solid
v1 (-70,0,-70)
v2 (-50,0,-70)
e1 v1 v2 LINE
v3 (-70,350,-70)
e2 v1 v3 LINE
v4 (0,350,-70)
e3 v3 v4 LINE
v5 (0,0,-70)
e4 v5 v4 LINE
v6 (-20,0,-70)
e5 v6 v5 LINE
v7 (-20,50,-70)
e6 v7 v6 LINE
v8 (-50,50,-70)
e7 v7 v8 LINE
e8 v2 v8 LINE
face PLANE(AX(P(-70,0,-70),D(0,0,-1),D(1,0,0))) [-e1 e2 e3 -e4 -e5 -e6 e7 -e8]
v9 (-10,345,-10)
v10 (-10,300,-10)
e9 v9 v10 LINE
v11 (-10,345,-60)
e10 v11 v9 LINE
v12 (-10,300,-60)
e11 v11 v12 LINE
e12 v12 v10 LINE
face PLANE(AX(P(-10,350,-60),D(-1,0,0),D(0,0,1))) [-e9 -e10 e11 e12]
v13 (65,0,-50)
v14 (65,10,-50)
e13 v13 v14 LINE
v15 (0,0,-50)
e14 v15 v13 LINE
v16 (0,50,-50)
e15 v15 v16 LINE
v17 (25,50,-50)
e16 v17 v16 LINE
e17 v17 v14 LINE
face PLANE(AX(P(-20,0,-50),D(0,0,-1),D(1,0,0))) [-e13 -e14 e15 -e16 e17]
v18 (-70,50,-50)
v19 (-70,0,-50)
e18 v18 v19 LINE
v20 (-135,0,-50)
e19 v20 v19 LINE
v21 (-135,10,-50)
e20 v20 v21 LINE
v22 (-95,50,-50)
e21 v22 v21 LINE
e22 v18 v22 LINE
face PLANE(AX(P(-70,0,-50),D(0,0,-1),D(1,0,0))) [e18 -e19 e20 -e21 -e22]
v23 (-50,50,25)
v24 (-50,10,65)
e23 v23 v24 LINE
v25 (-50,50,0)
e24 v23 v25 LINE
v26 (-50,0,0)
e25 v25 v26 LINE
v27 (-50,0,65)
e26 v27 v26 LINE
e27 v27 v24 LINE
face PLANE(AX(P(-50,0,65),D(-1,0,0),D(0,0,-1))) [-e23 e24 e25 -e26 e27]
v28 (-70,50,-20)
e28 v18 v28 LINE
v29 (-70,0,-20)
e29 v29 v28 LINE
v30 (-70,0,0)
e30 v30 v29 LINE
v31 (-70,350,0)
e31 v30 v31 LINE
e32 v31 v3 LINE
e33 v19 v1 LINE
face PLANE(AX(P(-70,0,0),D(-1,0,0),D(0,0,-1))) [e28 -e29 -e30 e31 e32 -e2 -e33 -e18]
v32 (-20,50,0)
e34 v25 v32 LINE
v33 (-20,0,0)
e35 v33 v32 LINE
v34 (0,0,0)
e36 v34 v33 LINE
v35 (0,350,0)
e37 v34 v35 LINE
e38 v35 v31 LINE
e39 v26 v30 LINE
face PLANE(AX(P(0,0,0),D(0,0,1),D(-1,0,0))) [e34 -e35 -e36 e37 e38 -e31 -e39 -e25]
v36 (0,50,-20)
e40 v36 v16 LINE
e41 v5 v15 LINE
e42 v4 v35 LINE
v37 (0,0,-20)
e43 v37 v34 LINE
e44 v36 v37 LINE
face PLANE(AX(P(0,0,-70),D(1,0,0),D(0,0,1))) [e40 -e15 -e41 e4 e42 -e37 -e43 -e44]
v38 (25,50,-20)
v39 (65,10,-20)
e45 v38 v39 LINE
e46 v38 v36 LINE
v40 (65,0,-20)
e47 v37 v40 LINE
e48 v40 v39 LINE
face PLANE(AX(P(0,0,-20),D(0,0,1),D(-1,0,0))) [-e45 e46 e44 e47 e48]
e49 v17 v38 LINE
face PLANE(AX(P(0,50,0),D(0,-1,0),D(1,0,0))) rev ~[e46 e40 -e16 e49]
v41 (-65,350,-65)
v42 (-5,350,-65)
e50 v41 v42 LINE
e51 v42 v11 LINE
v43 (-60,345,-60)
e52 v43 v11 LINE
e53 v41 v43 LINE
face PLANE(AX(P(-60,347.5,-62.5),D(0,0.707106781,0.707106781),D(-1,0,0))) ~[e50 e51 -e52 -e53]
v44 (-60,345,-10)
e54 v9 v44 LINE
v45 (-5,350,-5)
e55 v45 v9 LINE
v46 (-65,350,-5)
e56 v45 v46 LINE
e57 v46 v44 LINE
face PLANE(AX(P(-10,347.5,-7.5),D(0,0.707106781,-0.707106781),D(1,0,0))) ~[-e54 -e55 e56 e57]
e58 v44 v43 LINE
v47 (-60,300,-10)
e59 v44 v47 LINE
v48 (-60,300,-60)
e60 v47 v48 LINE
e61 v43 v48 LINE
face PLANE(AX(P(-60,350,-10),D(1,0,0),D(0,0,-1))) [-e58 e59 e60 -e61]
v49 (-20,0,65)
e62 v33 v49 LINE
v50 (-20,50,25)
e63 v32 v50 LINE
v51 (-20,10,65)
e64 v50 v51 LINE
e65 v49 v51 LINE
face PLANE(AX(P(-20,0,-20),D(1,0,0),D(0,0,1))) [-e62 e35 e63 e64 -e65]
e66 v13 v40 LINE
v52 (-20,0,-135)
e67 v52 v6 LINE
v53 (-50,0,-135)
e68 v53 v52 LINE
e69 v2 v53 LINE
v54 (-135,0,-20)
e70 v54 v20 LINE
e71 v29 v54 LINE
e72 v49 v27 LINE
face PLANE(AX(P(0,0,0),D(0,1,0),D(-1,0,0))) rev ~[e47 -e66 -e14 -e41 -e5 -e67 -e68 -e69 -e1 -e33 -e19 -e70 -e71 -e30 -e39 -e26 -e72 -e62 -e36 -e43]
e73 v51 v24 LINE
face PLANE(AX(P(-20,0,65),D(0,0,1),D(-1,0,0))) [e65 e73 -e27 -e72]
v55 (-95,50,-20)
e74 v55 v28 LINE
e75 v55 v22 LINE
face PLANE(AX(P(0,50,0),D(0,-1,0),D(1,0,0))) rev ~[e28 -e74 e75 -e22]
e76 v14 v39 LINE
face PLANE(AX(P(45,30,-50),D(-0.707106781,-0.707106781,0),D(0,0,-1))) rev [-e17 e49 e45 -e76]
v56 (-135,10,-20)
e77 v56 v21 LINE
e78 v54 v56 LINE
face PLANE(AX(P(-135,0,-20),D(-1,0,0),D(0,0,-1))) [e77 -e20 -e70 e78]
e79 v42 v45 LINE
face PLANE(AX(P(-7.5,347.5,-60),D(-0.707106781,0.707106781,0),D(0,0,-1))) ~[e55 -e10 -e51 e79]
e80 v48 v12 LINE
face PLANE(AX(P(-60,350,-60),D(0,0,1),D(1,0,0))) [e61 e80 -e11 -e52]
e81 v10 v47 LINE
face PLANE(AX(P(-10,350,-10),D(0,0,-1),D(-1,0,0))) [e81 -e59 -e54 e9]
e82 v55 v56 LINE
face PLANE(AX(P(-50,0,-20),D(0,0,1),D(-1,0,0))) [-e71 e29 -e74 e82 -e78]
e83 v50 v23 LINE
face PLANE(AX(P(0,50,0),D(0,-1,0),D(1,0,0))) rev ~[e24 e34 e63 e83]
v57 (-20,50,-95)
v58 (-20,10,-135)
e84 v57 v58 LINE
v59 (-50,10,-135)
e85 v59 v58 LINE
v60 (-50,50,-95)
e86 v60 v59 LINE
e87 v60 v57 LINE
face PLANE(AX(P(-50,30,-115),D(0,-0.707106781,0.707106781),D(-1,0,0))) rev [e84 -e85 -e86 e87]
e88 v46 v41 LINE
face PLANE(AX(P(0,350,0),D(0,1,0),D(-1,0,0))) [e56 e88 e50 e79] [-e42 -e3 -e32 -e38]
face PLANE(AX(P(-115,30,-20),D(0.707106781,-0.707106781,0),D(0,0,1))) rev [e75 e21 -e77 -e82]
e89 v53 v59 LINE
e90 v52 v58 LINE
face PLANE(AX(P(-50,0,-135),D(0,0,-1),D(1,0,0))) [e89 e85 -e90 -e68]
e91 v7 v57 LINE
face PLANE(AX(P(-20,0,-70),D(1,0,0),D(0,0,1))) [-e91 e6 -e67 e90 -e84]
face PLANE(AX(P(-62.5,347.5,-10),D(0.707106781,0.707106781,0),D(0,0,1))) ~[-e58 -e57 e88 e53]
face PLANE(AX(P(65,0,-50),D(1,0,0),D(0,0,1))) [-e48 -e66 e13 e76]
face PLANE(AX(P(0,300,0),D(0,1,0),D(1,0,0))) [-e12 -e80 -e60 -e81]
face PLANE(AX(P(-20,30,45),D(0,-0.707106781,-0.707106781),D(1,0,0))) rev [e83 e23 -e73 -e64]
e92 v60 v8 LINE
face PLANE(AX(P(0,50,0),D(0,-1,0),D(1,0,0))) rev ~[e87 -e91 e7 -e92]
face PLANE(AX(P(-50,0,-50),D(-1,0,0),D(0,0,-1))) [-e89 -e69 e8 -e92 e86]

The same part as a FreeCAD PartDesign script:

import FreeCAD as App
import Part
import Sketcher
from FreeCAD import Vector
Q = App.Units.Quantity


def edges_at(feature, points):
    """Names of the edges that pass closest to the given points."""
    edges = feature.Shape.Edges
    near = lambda p: min(range(len(edges)), key=lambda i: edges[i].distToShape(Part.Vertex(*p))[0])
    return sorted({f"Edge{near(p) + 1}" for p in points})

doc = App.newDocument("Part")
body = doc.addObject("PartDesign::Body", "Body")

# Sketch on XZ plane
sketch1 = body.newObject("Sketcher::SketchObject", "Sketch")
sketch1.AttachmentSupport = (doc.getObject("XZ_Plane"), [""])
sketch1.MapMode = "FlatFace"
sketch1.addGeometry([
    Part.LineSegment(Vector(-70, 0, 0), Vector(0, 0, 0)),
    Part.LineSegment(Vector(0, 0, 0), Vector(0, -70, 0)),
    Part.LineSegment(Vector(0, -70, 0), Vector(-70, -70, 0)),
    Part.LineSegment(Vector(-70, -70, 0), Vector(-70, 0, 0)),
], False)
sketch1.addConstraint([
    Sketcher.Constraint("Coincident", 0, 2, 1, 1),
    Sketcher.Constraint("Coincident", 1, 2, 2, 1),
    Sketcher.Constraint("Coincident", 2, 2, 3, 1),
    Sketcher.Constraint("Coincident", 3, 2, 0, 1),
    Sketcher.Constraint("Horizontal", 0),
    Sketcher.Constraint("Vertical", 1),
    Sketcher.Constraint("Horizontal", 2),
    Sketcher.Constraint("Vertical", 3),
    Sketcher.Constraint("Coincident", 0, 2, -1, 1),
    Sketcher.Constraint("Equal", 2, 1),
    Sketcher.Constraint("DistanceX", 0, 1, 0, 2, Q("70 mm")),
])
pad1 = body.newObject("PartDesign::Pad", "Pad")
pad1.Profile = sketch1
pad1.Length = 350
pad1.Reversed = True

# Sketch on XZ plane
sketch2 = body.newObject("Sketcher::SketchObject", "Sketch001")
sketch2.AttachmentSupport = (doc.getObject("XZ_Plane"), [""])
sketch2.MapMode = "FlatFace"
sketch2.AttachmentOffset = App.Placement(Vector(0, 0, -350), App.Rotation())
sketch2.addGeometry([
    Part.LineSegment(Vector(-60, -10, 0), Vector(-10, -10, 0)),
    Part.LineSegment(Vector(-10, -10, 0), Vector(-10, -60, 0)),
    Part.LineSegment(Vector(-10, -60, 0), Vector(-60, -60, 0)),
    Part.LineSegment(Vector(-60, -60, 0), Vector(-60, -10, 0)),
], False)
sketch2.addConstraint([
    Sketcher.Constraint("Coincident", 0, 2, 1, 1),
    Sketcher.Constraint("Coincident", 1, 2, 2, 1),
    Sketcher.Constraint("Coincident", 2, 2, 3, 1),
    Sketcher.Constraint("Coincident", 3, 2, 0, 1),
    Sketcher.Constraint("Horizontal", 0),
    Sketcher.Constraint("Vertical", 1),
    Sketcher.Constraint("Horizontal", 2),
    Sketcher.Constraint("Vertical", 3),
    Sketcher.Constraint("Equal", 2, 1),
    Sketcher.Constraint("DistanceX", 0, 1, 0, 2, Q("50 mm")),
    Sketcher.Constraint("DistanceX", 0, 2, -1, 1, Q("10 mm")),
    Sketcher.Constraint("DistanceY", 0, 2, -1, 1, Q("10 mm")),
])
pocket1 = body.newObject("PartDesign::Pocket", "Pocket")
pocket1.Profile = sketch2
pocket1.Length = 50
pocket1.Reversed = True
doc.recompute()

chamfer = body.newObject("PartDesign::Chamfer", "Chamfer")
chamfer.Base = (pocket1, edges_at(pocket1, [
    (-60, 350, -35),
    (-35, 350, -60),
    (-10, 350, -35),
    (-35, 350, -10),
]))
chamfer.Size = 5

# Sketch on XZ plane
sketch3 = body.newObject("Sketcher::SketchObject", "Sketch002")
sketch3.AttachmentSupport = (doc.getObject("XZ_Plane"), [""])
sketch3.MapMode = "FlatFace"
sketch3.addGeometry([
    Part.LineSegment(Vector(-20, -20, 0), Vector(-20, 65, 0)),  # 0
    Part.LineSegment(Vector(-20, 65, 0), Vector(-50, 65, 0)),  # 1
    Part.LineSegment(Vector(-50, 65, 0), Vector(-50, -20, 0)),  # 2
    Part.LineSegment(Vector(-50, -20, 0), Vector(-135, -20, 0)),  # 3
    Part.LineSegment(Vector(-135, -20, 0), Vector(-135, -50, 0)),  # 4
    Part.LineSegment(Vector(-135, -50, 0), Vector(-50, -50, 0)),  # 5
    Part.LineSegment(Vector(-50, -50, 0), Vector(-50, -135, 0)),  # 6
    Part.LineSegment(Vector(-50, -135, 0), Vector(-20, -135, 0)),  # 7
    Part.LineSegment(Vector(-20, -135, 0), Vector(-20, -50, 0)),  # 8
    Part.LineSegment(Vector(-20, -50, 0), Vector(65, -50, 0)),  # 9
    Part.LineSegment(Vector(65, -50, 0), Vector(65, -20, 0)),  # 10
    Part.LineSegment(Vector(65, -20, 0), Vector(-20, -20, 0)),  # 11
], False)
sketch3.addConstraint([
    Sketcher.Constraint("Coincident", 0, 2, 1, 1),
    Sketcher.Constraint("Coincident", 1, 2, 2, 1),
    Sketcher.Constraint("Coincident", 2, 2, 3, 1),
    Sketcher.Constraint("Coincident", 3, 2, 4, 1),
    Sketcher.Constraint("Coincident", 4, 2, 5, 1),
    Sketcher.Constraint("Coincident", 5, 2, 6, 1),
    Sketcher.Constraint("Coincident", 6, 2, 7, 1),
    Sketcher.Constraint("Coincident", 7, 2, 8, 1),
    Sketcher.Constraint("Coincident", 8, 2, 9, 1),
    Sketcher.Constraint("Coincident", 9, 2, 10, 1),
    Sketcher.Constraint("Coincident", 10, 2, 11, 1),
    Sketcher.Constraint("Coincident", 11, 2, 0, 1),
    Sketcher.Constraint("Vertical", 0),
    Sketcher.Constraint("Horizontal", 1),
    Sketcher.Constraint("Vertical", 2),
    Sketcher.Constraint("Horizontal", 3),
    Sketcher.Constraint("Vertical", 4),
    Sketcher.Constraint("Horizontal", 5),
    Sketcher.Constraint("Vertical", 6),
    Sketcher.Constraint("Horizontal", 7),
    Sketcher.Constraint("Vertical", 8),
    Sketcher.Constraint("Horizontal", 9),
    Sketcher.Constraint("Vertical", 10),
    Sketcher.Constraint("Horizontal", 11),
    Sketcher.Constraint("Horizontal", 5, 2, 8, 2),
    Sketcher.Constraint("Horizontal", 3, 2, 10, 2),
    Sketcher.Constraint("Vertical", 2, 2, 5, 2),
    Sketcher.Constraint("Vertical", 0, 2, 7, 2),
    Sketcher.Constraint("Equal", 5, 9),
    Sketcher.Constraint("Equal", 11, 0),
    Sketcher.Constraint("Equal", 7, 4),
    Sketcher.Constraint("Equal", 2, 6),
    Sketcher.Constraint("DistanceX", 1, 2, 1, 1, Q("30 mm")),
    Sketcher.Constraint("DistanceX", 0, 2, -1, 1, Q("20 mm")),
    Sketcher.Constraint("DistanceY", -1, 1, 0, 2, Q("65 mm")),
    Sketcher.Constraint("DistanceY", 2, 2, -1, 1, Q("20 mm")),
])
pad2 = body.newObject("PartDesign::Pad", "Pad001")
pad2.Profile = sketch3
pad2.Length = 50
pad2.Reversed = True
doc.recompute()

chamfer2 = body.newObject("PartDesign::Chamfer", "Chamfer001")
chamfer2.Base = (pad2, edges_at(pad2, [
    (-35, 50, 65),
    (-135, 50, -35),
    (-35, 50, -135),
    (65, 50, -35),
]))
chamfer2.Size = 40

doc.recompute()
